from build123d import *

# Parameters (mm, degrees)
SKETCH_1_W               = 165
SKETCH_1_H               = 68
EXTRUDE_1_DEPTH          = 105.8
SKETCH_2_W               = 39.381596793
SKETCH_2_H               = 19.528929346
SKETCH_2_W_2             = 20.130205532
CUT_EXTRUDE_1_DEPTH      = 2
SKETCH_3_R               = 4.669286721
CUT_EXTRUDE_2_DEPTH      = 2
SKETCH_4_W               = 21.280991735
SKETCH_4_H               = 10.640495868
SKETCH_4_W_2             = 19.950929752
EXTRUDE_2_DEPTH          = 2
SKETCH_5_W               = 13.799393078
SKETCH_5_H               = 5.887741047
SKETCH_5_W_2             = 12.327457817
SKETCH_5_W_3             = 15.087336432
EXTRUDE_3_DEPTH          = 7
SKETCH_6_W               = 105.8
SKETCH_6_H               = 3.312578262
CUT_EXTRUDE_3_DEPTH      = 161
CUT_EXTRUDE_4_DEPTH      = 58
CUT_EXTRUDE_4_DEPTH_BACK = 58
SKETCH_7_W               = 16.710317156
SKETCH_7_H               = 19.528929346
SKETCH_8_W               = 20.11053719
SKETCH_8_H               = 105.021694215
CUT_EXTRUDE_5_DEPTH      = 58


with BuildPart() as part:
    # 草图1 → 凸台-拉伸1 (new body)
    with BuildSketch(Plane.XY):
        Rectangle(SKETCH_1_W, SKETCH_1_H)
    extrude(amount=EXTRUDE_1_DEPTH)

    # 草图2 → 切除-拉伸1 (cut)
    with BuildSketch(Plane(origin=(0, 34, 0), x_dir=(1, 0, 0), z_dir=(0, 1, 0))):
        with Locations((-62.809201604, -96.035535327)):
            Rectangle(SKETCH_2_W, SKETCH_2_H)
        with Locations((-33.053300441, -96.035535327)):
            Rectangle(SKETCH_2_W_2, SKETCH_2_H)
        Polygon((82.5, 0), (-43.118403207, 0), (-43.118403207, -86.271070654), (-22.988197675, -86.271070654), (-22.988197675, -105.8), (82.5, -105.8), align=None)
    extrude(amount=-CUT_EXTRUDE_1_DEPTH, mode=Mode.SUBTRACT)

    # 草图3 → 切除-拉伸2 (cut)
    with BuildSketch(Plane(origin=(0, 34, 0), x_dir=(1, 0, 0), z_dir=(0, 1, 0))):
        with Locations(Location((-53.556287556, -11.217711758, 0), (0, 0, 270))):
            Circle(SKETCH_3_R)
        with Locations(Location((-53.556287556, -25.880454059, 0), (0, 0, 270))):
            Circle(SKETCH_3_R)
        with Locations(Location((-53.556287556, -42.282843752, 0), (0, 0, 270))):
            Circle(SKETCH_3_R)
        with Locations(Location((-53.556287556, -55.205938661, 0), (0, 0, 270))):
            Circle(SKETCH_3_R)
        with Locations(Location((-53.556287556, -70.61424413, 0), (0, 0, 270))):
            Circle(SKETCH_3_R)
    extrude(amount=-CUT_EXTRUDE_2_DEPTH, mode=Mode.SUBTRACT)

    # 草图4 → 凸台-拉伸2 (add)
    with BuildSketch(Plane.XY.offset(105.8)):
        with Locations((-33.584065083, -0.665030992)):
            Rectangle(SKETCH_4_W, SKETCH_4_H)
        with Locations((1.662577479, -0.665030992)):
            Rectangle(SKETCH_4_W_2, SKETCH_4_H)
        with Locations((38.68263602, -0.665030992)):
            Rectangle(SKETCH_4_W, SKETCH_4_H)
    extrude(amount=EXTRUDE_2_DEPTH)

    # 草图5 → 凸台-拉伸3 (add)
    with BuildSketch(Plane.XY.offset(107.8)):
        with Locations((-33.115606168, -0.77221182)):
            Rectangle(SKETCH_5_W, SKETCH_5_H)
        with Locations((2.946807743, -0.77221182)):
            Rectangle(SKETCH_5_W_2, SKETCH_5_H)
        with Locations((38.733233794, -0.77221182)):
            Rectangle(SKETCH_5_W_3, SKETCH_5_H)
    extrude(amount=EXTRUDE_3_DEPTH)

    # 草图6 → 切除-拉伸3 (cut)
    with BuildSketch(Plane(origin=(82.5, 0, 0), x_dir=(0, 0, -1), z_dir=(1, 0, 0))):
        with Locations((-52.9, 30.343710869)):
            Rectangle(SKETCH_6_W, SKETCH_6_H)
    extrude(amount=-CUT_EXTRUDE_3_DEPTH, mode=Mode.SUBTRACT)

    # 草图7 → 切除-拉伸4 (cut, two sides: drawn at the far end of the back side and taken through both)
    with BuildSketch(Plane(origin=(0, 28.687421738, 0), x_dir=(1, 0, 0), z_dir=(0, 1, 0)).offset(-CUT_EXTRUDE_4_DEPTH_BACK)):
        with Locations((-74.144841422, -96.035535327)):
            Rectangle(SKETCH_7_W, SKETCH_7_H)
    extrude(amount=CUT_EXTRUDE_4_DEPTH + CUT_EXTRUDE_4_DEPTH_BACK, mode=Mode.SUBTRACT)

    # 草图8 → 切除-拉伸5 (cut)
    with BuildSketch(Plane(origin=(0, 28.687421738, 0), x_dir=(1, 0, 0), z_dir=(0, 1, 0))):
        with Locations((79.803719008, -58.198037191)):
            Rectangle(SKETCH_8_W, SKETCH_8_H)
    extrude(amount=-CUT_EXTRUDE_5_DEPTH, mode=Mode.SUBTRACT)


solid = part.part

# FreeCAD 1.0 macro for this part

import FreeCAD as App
import Part
import Sketcher

V = App.Vector
Q = App.Units.Quantity

doc = App.newDocument("Part")
params = doc.addObject("Spreadsheet::Sheet", "Params")
for row, (alias, value) in enumerate([
    ("sketch1_width", "165 mm"),
    ("sketch1_height", "68 mm"),
    ("pad1_length", "105.8 mm"),
    ("sketch2_width", "165 mm"),
    ("sketch2_height", "105.8 mm"),
    ("pocket1_length", "2 mm"),
    ("pocket2_length", "2 mm"),
    ("pad2_length", "2 mm"),
    ("pad3_length", "7 mm"),
    ("sketch6_height", "105.8 mm"),
    ("pocket3_length", "161 mm"),
    ("pocket4_length", "58 mm"),
    ("pocket4_length2", "58 mm"),
    ("pocket5_length", "58 mm"),
], start=1):
    params.set(f"A{row}", alias)
    params.set(f"B{row}", "=" + value)
    params.setAlias(f"B{row}", alias)

body = doc.addObject("PartDesign::Body", "Body")

sketch1 = body.newObject("Sketcher::SketchObject", "Sketch")
sketch1.AttachmentSupport = (doc.getObject("XY_Plane"), [""])
sketch1.MapMode = "FlatFace"
sketch1.addGeometry([
    Part.LineSegment(V(-82, 34, 0), V(-82, -34, 0)),
    Part.LineSegment(V(-82, -34, 0), V(82, -34, 0)),
    Part.LineSegment(V(82, -34, 0), V(82, 34, 0)),
    Part.LineSegment(V(82, 34, 0), V(-82, 34, 0)),
], False)
sketch1.addConstraint([
    Sketcher.Constraint("Coincident", 0, 2, 1, 1),
    Sketcher.Constraint("Coincident", 1, 2, 2, 1),
    Sketcher.Constraint("Coincident", 2, 2, 3, 1),
    Sketcher.Constraint("Coincident", 3, 2, 0, 1),
    Sketcher.Constraint("Vertical", 0),
    Sketcher.Constraint("Horizontal", 1),
    Sketcher.Constraint("Vertical", 2),
    Sketcher.Constraint("Horizontal", 3),
    Sketcher.Constraint("Symmetric", 0, 2, 2, 2, -1, 1),
    Sketcher.Constraint("DistanceX", 1, 1, 1, 2, Q("165 mm")),
    Sketcher.Constraint("DistanceY", 0, 2, 0, 1, Q("68 mm")),
])
sketch1.setExpression("Constraints[9]", "Params.sketch1_width")
sketch1.setExpression("Constraints[10]", "Params.sketch1_height")
pad1 = body.newObject("PartDesign::Pad", "Pad")
pad1.Profile = sketch1
pad1.setExpression("Length", "Params.pad1_length")

sketch2 = body.newObject("Sketcher::SketchObject", "Sketch001")
sketch2.AttachmentSupport = (doc.getObject("XZ_Plane"), [""])
sketch2.MapMode = "FlatFace"
sketch2.AttachmentOffset = App.Placement(V(0, 0, -34), App.Rotation())
sketch2.addGeometry([
    Part.LineSegment(V(-82, 86, 0), V(-82, 106, 0)),
    Part.LineSegment(V(-82, 106, 0), V(82, 106, 0)),
    Part.LineSegment(V(82, 106, 0), V(82, 0, 0)),
    Part.LineSegment(V(82, 0, 0), V(-43, 0, 0)),
    Part.LineSegment(V(-43, 0, 0), V(-43, 86, 0)),
    Part.LineSegment(V(-43, 86, 0), V(-82, 86, 0)),
], False)
sketch2.addConstraint([
    Sketcher.Constraint("Coincident", 0, 2, 1, 1),
    Sketcher.Constraint("Coincident", 1, 2, 2, 1),
    Sketcher.Constraint("Coincident", 2, 2, 3, 1),
    Sketcher.Constraint("Coincident", 3, 2, 4, 1),
    Sketcher.Constraint("Coincident", 4, 2, 5, 1),
    Sketcher.Constraint("Coincident", 5, 2, 0, 1),
    Sketcher.Constraint("Vertical", 0),
    Sketcher.Constraint("Horizontal", 1),
    Sketcher.Constraint("Vertical", 2),
    Sketcher.Constraint("Horizontal", 3),
    Sketcher.Constraint("Vertical", 4),
    Sketcher.Constraint("Horizontal", 5),
    Sketcher.Constraint("PointOnObject", 2, 2, -1),
    Sketcher.Constraint("DistanceX", 1, 1, 1, 2, Q("165 mm")),
    Sketcher.Constraint("DistanceY", 2, 2, 2, 1, Q("105.8 mm")),
    Sketcher.Constraint("DistanceX", 0, 2, -1, 1, Q("82.5 mm")),
    Sketcher.Constraint("DistanceY", 0, 1, 0, 2, Q("19.528929 mm")),
    Sketcher.Constraint("DistanceX", 3, 2, 3, 1, Q("125.618403 mm")),
])
sketch2.setExpression("Constraints[13]", "Params.sketch2_width")
sketch2.setExpression("Constraints[14]", "Params.sketch2_height")
pocket1 = body.newObject("PartDesign::Pocket", "Pocket")
pocket1.Profile = sketch2
pocket1.setExpression("Length", "Params.pocket1_length")
pocket1.Reversed = True

sketch3 = body.newObject("Sketcher::SketchObject", "Sketch002")
sketch3.AttachmentSupport = (doc.getObject("XZ_Plane"), [""])
sketch3.MapMode = "FlatFace"
sketch3.AttachmentOffset = App.Placement(V(0, 0, -34), App.Rotation())
sketch3.addGeometry([
    Part.Circle(V(-53.6, 11.2, 0), V(0, 0, 1), 4.7),
    Part.Circle(V(-53.6, 25.9, 0), V(0, 0, 1), 4.7),
    Part.Circle(V(-53.6, 42.3, 0), V(0, 0, 1), 4.7),
    Part.Circle(V(-53.6, 55.2, 0), V(0, 0, 1), 4.7),
    Part.Circle(V(-53.6, 70.6, 0), V(0, 0, 1), 4.7),
], False)
sketch3.addConstraint([
    Sketcher.Constraint("Equal", 0, 1),
    Sketcher.Constraint("Equal", 1, 2),
    Sketcher.Constraint("Equal", 2, 3),
    Sketcher.Constraint("Equal", 3, 4),
    Sketcher.Constraint("Vertical", 0, 3, 1, 3),
    Sketcher.Constraint("Vertical", 1, 3, 2, 3),
    Sketcher.Constraint("Vertical", 2, 3, 3, 3),
    Sketcher.Constraint("Vertical", 3, 3, 4, 3),
    Sketcher.Constraint("Diameter", 0, Q("9.338573 mm")),
    Sketcher.Constraint("DistanceY", 2, 3, 4, 3, Q("28.3314 mm")),
    Sketcher.Constraint("DistanceY", -1, 1, 0, 3, Q("11.217712 mm")),
    Sketcher.Constraint("DistanceY", -1, 1, 3, 3, Q("55.205939 mm")),
    Sketcher.Constraint("DistanceY", 1, 3, 2, 3, Q("16.40239 mm")),
    Sketcher.Constraint("DistanceY", 0, 3, 2, 3, Q("31.065132 mm")),
    Sketcher.Constraint("DistanceX", 0, 3, -1, 1, Q("53.556288 mm")),
])
pocket2 = body.newObject("PartDesign::Pocket", "Pocket001")
pocket2.Profile = sketch3
pocket2.setExpression("Length", "Params.pocket2_length")
pocket2.Reversed = True

sketch4 = body.newObject("Sketcher::SketchObject", "Sketch003")
sketch4.AttachmentSupport = (doc.getObject("XY_Plane"), [""])
sketch4.MapMode = "FlatFace"
sketch4.AttachmentOffset = App.Placement(V(0, 0, 105.8), App.Rotation())
sketch4.addGeometry([
    Part.LineSegment(V(-44, 5, 0), V(-44, -6, 0)),
    Part.LineSegment(V(-44, -6, 0), V(-23, -6, 0)),
    Part.LineSegment(V(-23, -6, 0), V(-23, 5, 0)),
    Part.LineSegment(V(-23, 5, 0), V(-44, 5, 0)),
    Part.LineSegment(V(-8, 5, 0), V(-8, -6, 0)),
    Part.LineSegment(V(-8, -6, 0), V(12, -6, 0)),
    Part.LineSegment(V(12, -6, 0), V(12, 5, 0)),
    Part.LineSegment(V(12, 5, 0), V(-8, 5, 0)),
    Part.LineSegment(V(28, 5, 0), V(28, -6, 0)),
    Part.LineSegment(V(28, -6, 0), V(49, -6, 0)),
    Part.LineSegment(V(49, -6, 0), V(49, 5, 0)),
    Part.LineSegment(V(49, 5, 0), V(28, 5, 0)),
], False)
sketch4.addConstraint([
    Sketcher.Constraint("Coincident", 0, 2, 1, 1),
    Sketcher.Constraint("Coincident", 1, 2, 2, 1),
    Sketcher.Constraint("Coincident", 2, 2, 3, 1),
    Sketcher.Constraint("Coincident", 3, 2, 0, 1),
    Sketcher.Constraint("Coincident", 4, 2, 5, 1),
    Sketcher.Constraint("Coincident", 5, 2, 6, 1),
    Sketcher.Constraint("Coincident", 6, 2, 7, 1),
    Sketcher.Constraint("Coincident", 7, 2, 4, 1),
    Sketcher.Constraint("Coincident", 8, 2, 9, 1),
    Sketcher.Constraint("Coincident", 9, 2, 10, 1),
    Sketcher.Constraint("Coincident", 10, 2, 11, 1),
    Sketcher.Constraint("Coincident", 11, 2, 8, 1),
    Sketcher.Constraint("Vertical", 0),
    Sketcher.Constraint("Horizontal", 1),
    Sketcher.Constraint("Vertical", 2),
    Sketcher.Constraint("Horizontal", 3),
    Sketcher.Constraint("Vertical", 4),
    Sketcher.Constraint("Horizontal", 5),
    Sketcher.Constraint("Vertical", 6),
    Sketcher.Constraint("Horizontal", 7),
    Sketcher.Constraint("Vertical", 8),
    Sketcher.Constraint("Horizontal", 9),
    Sketcher.Constraint("Vertical", 10),
    Sketcher.Constraint("Horizontal", 11),
    Sketcher.Constraint("Horizontal", 1, 2, 4, 2),
    Sketcher.Constraint("Horizontal", 3, 2, 6, 2),
    Sketcher.Constraint("Horizontal", 5, 2, 8, 2),
    Sketcher.Constraint("Horizontal", 7, 2, 10, 2),
    Sketcher.Constraint("Equal", 3, 9),
    Sketcher.Constraint("DistanceX", 1, 1, 1, 2, Q("21.280992 mm")),
    Sketcher.Constraint("DistanceX", 5, 1, 5, 2, Q("19.95093 mm")),
    Sketcher.Constraint("DistanceY", 0, 2, 0, 1, Q("10.640496 mm")),
    Sketcher.Constraint("DistanceX", 0, 2, -1, 1, Q("44.224561 mm")),
    Sketcher.Constraint("DistanceY", 0, 2, -1, 1, Q("5.985279 mm")),
    Sketcher.Constraint("DistanceX", -1, 1, 8, 2, Q("28.04214 mm")),
    Sketcher.Constraint("DistanceX", 1, 2, 4, 2, Q("14.630682 mm")),
])
pad2 = body.newObject("PartDesign::Pad", "Pad001")
pad2.Profile = sketch4
pad2.setExpression("Length", "Params.pad2_length")

sketch5 = body.newObject("Sketcher::SketchObject", "Sketch004")
sketch5.AttachmentSupport = (doc.getObject("XY_Plane"), [""])
sketch5.MapMode = "FlatFace"
sketch5.AttachmentOffset = App.Placement(V(0, 0, 107.8), App.Rotation())
sketch5.addGeometry([
    Part.LineSegment(V(-40, 2, 0), V(-40, -4, 0)),
    Part.LineSegment(V(-40, -4, 0), V(-26, -4, 0)),
    Part.LineSegment(V(-26, -4, 0), V(-26, 2, 0)),
    Part.LineSegment(V(-26, 2, 0), V(-40, 2, 0)),
    Part.LineSegment(V(-3, 2, 0), V(-3, -4, 0)),
    Part.LineSegment(V(-3, -4, 0), V(9, -4, 0)),
    Part.LineSegment(V(9, -4, 0), V(9, 2, 0)),
    Part.LineSegment(V(9, 2, 0), V(-3, 2, 0)),
    Part.LineSegment(V(31, 2, 0), V(31, -4, 0)),
    Part.LineSegment(V(31, -4, 0), V(46, -4, 0)),
    Part.LineSegment(V(46, -4, 0), V(46, 2, 0)),
    Part.LineSegment(V(46, 2, 0), V(31, 2, 0)),
], False)
sketch5.addConstraint([
    Sketcher.Constraint("Coincident", 0, 2, 1, 1),
    Sketcher.Constraint("Coincident", 1, 2, 2, 1),
    Sketcher.Constraint("Coincident", 2, 2, 3, 1),
    Sketcher.Constraint("Coincident", 3, 2, 0, 1),
    Sketcher.Constraint("Coincident", 4, 2, 5, 1),
    Sketcher.Constraint("Coincident", 5, 2, 6, 1),
    Sketcher.Constraint("Coincident", 6, 2, 7, 1),
    Sketcher.Constraint("Coincident", 7, 2, 4, 1),
    Sketcher.Constraint("Coincident", 8, 2, 9, 1),
    Sketcher.Constraint("Coincident", 9, 2, 10, 1),
    Sketcher.Constraint("Coincident", 10, 2, 11, 1),
    Sketcher.Constraint("Coincident", 11, 2, 8, 1),
    Sketcher.Constraint("Vertical", 0),
    Sketcher.Constraint("Horizontal", 1),
    Sketcher.Constraint("Vertical", 2),
    Sketcher.Constraint("Horizontal", 3),
    Sketcher.Constraint("Vertical", 4),
    Sketcher.Constraint("Horizontal", 5),
    Sketcher.Constraint("Vertical", 6),
    Sketcher.Constraint("Horizontal", 7),
    Sketcher.Constraint("Vertical", 8),
    Sketcher.Constraint("Horizontal", 9),
    Sketcher.Constraint("Vertical", 10),
    Sketcher.Constraint("Horizontal", 11),
    Sketcher.Constraint("Horizontal", 1, 2, 4, 2),
    Sketcher.Constraint("Horizontal", 3, 2, 6, 2),
    Sketcher.Constraint("Horizontal", 5, 2, 8, 2),
    Sketcher.Constraint("Horizontal", 7, 2, 10, 2),
    Sketcher.Constraint("DistanceY", 0, 2, 0, 1, Q("5.887741 mm")),
    Sketcher.Constraint("DistanceX", 1, 1, 1, 2, Q("13.799393 mm")),
    Sketcher.Constraint("DistanceX", 5, 1, 5, 2, Q("12.327458 mm")),
    Sketcher.Constraint("DistanceX", 9, 1, 9, 2, Q("15.087336 mm")),
    Sketcher.Constraint("DistanceX", 1, 2, -1, 1, Q("26.21591 mm")),
    Sketcher.Constraint("DistanceY", -1, 1, 2, 2, Q("2.171659 mm")),
    Sketcher.Constraint("DistanceX", 4, 2, -1, 1, Q("3.216921 mm")),
    Sketcher.Constraint("DistanceX", 5, 2, 8, 2, Q("22.079029 mm")),
])
pad3 = body.newObject("PartDesign::Pad", "Pad002")
pad3.Profile = sketch5
pad3.setExpression("Length", "Params.pad3_length")

sketch6 = body.newObject("Sketcher::SketchObject", "Sketch005")
sketch6.AttachmentSupport = (doc.getObject("YZ_Plane"), [""])
sketch6.MapMode = "FlatFace"
sketch6.AttachmentOffset = App.Placement(V(0, 0, 82.5), App.Rotation())
sketch6.addGeometry([
    Part.LineSegment(V(32, 105.8, 0), V(28.7, 105.8, 0)),
    Part.LineSegment(V(28.7, 105.8, 0), V(28.7, 0, 0)),
    Part.LineSegment(V(28.7, 0, 0), V(32, 0, 0)),
    Part.LineSegment(V(32, 0, 0), V(32, 105.8, 0)),
], False)
sketch6.addConstraint([
    Sketcher.Constraint("Coincident", 0, 2, 1, 1),
    Sketcher.Constraint("Coincident", 1, 2, 2, 1),
    Sketcher.Constraint("Coincident", 2, 2, 3, 1),
    Sketcher.Constraint("Coincident", 3, 2, 0, 1),
    Sketcher.Constraint("Horizontal", 0),
    Sketcher.Constraint("Vertical", 1),
    Sketcher.Constraint("Horizontal", 2),
    Sketcher.Constraint("Vertical", 3),
    Sketcher.Constraint("PointOnObject", 1, 2, -1),
    Sketcher.Constraint("DistanceY", 1, 2, 1, 1, Q("105.8 mm")),
    Sketcher.Constraint("DistanceX", -1, 1, 2, 2, Q("32 mm")),
    Sketcher.Constraint("DistanceX", 0, 2, 0, 1, Q("3.312578 mm")),
])
sketch6.setExpression("Constraints[9]", "Params.sketch6_height")
pocket3 = body.newObject("PartDesign::Pocket", "Pocket002")
pocket3.Profile = sketch6
pocket3.setExpression("Length", "Params.pocket3_length")

sketch7 = body.newObject("Sketcher::SketchObject", "Sketch006")
sketch7.AttachmentSupport = (doc.getObject("XZ_Plane"), [""])
sketch7.MapMode = "FlatFace"
sketch7.AttachmentOffset = App.Placement(V(0, 0, -28.687422), App.Rotation())
sketch7.addGeometry([
    Part.LineSegment(V(-82, 86, 0), V(-82, 106, 0)),
    Part.LineSegment(V(-82, 106, 0), V(-66, 106, 0)),
    Part.LineSegment(V(-66, 106, 0), V(-66, 86, 0)),
    Part.LineSegment(V(-66, 86, 0), V(-82, 86, 0)),
], False)
sketch7.addConstraint([
    Sketcher.Constraint("Coincident", 0, 2, 1, 1),
    Sketcher.Constraint("Coincident", 1, 2, 2, 1),
    Sketcher.Constraint("Coincident", 2, 2, 3, 1),
    Sketcher.Constraint("Coincident", 3, 2, 0, 1),
    Sketcher.Constraint("Vertical", 0),
    Sketcher.Constraint("Horizontal", 1),
    Sketcher.Constraint("Vertical", 2),
    Sketcher.Constraint("Horizontal", 3),
    Sketcher.Constraint("DistanceX", 0, 2, -1, 1, Q("82.5 mm")),
    Sketcher.Constraint("DistanceY", -1, 1, 0, 2, Q("105.8 mm")),
    Sketcher.Constraint("DistanceY", 0, 1, 0, 2, Q("19.528929 mm")),
    Sketcher.Constraint("DistanceX", 1, 1, 1, 2, Q("16.710317 mm")),
])
pocket4 = body.newObject("PartDesign::Pocket", "Pocket003")
pocket4.Profile = sketch7
pocket4.Type = "TwoLengths"
pocket4.setExpression("Length", "Params.pocket4_length")
pocket4.setExpression("Length2", "Params.pocket4_length2")

sketch8 = body.newObject("Sketcher::SketchObject", "Sketch007")
sketch8.AttachmentSupport = (doc.getObject("XZ_Plane"), [""])
sketch8.MapMode = "FlatFace"
sketch8.AttachmentOffset = App.Placement(V(0, 0, -28.687422), App.Rotation())
sketch8.addGeometry([
    Part.LineSegment(V(70, 6, 0), V(70, 111, 0)),
    Part.LineSegment(V(70, 111, 0), V(90, 111, 0)),
    Part.LineSegment(V(90, 111, 0), V(90, 6, 0)),
    Part.LineSegment(V(90, 6, 0), V(70, 6, 0)),
], False)
sketch8.addConstraint([
    Sketcher.Constraint("Coincident", 0, 2, 1, 1),
    Sketcher.Constraint("Coincident", 1, 2, 2, 1),
    Sketcher.Constraint("Coincident", 2, 2, 3, 1),
    Sketcher.Constraint("Coincident", 3, 2, 0, 1),
    Sketcher.Constraint("Vertical", 0),
    Sketcher.Constraint("Horizontal", 1),
    Sketcher.Constraint("Vertical", 2),
    Sketcher.Constraint("Horizontal", 3),
    Sketcher.Constraint("DistanceX", 1, 1, 1, 2, Q("20.110537 mm")),
    Sketcher.Constraint("DistanceY", 0, 1, 0, 2, Q("105.021694 mm")),
    Sketcher.Constraint("DistanceX", -1, 1, 0, 2, Q("69.74845 mm")),
    Sketcher.Constraint("DistanceY", -1, 1, 2, 2, Q("5.68719 mm")),
])
pocket5 = body.newObject("PartDesign::Pocket", "Pocket004")
pocket5.Profile = sketch8
pocket5.setExpression("Length", "Params.pocket5_length")
pocket5.Reversed = True

doc.recompute()
